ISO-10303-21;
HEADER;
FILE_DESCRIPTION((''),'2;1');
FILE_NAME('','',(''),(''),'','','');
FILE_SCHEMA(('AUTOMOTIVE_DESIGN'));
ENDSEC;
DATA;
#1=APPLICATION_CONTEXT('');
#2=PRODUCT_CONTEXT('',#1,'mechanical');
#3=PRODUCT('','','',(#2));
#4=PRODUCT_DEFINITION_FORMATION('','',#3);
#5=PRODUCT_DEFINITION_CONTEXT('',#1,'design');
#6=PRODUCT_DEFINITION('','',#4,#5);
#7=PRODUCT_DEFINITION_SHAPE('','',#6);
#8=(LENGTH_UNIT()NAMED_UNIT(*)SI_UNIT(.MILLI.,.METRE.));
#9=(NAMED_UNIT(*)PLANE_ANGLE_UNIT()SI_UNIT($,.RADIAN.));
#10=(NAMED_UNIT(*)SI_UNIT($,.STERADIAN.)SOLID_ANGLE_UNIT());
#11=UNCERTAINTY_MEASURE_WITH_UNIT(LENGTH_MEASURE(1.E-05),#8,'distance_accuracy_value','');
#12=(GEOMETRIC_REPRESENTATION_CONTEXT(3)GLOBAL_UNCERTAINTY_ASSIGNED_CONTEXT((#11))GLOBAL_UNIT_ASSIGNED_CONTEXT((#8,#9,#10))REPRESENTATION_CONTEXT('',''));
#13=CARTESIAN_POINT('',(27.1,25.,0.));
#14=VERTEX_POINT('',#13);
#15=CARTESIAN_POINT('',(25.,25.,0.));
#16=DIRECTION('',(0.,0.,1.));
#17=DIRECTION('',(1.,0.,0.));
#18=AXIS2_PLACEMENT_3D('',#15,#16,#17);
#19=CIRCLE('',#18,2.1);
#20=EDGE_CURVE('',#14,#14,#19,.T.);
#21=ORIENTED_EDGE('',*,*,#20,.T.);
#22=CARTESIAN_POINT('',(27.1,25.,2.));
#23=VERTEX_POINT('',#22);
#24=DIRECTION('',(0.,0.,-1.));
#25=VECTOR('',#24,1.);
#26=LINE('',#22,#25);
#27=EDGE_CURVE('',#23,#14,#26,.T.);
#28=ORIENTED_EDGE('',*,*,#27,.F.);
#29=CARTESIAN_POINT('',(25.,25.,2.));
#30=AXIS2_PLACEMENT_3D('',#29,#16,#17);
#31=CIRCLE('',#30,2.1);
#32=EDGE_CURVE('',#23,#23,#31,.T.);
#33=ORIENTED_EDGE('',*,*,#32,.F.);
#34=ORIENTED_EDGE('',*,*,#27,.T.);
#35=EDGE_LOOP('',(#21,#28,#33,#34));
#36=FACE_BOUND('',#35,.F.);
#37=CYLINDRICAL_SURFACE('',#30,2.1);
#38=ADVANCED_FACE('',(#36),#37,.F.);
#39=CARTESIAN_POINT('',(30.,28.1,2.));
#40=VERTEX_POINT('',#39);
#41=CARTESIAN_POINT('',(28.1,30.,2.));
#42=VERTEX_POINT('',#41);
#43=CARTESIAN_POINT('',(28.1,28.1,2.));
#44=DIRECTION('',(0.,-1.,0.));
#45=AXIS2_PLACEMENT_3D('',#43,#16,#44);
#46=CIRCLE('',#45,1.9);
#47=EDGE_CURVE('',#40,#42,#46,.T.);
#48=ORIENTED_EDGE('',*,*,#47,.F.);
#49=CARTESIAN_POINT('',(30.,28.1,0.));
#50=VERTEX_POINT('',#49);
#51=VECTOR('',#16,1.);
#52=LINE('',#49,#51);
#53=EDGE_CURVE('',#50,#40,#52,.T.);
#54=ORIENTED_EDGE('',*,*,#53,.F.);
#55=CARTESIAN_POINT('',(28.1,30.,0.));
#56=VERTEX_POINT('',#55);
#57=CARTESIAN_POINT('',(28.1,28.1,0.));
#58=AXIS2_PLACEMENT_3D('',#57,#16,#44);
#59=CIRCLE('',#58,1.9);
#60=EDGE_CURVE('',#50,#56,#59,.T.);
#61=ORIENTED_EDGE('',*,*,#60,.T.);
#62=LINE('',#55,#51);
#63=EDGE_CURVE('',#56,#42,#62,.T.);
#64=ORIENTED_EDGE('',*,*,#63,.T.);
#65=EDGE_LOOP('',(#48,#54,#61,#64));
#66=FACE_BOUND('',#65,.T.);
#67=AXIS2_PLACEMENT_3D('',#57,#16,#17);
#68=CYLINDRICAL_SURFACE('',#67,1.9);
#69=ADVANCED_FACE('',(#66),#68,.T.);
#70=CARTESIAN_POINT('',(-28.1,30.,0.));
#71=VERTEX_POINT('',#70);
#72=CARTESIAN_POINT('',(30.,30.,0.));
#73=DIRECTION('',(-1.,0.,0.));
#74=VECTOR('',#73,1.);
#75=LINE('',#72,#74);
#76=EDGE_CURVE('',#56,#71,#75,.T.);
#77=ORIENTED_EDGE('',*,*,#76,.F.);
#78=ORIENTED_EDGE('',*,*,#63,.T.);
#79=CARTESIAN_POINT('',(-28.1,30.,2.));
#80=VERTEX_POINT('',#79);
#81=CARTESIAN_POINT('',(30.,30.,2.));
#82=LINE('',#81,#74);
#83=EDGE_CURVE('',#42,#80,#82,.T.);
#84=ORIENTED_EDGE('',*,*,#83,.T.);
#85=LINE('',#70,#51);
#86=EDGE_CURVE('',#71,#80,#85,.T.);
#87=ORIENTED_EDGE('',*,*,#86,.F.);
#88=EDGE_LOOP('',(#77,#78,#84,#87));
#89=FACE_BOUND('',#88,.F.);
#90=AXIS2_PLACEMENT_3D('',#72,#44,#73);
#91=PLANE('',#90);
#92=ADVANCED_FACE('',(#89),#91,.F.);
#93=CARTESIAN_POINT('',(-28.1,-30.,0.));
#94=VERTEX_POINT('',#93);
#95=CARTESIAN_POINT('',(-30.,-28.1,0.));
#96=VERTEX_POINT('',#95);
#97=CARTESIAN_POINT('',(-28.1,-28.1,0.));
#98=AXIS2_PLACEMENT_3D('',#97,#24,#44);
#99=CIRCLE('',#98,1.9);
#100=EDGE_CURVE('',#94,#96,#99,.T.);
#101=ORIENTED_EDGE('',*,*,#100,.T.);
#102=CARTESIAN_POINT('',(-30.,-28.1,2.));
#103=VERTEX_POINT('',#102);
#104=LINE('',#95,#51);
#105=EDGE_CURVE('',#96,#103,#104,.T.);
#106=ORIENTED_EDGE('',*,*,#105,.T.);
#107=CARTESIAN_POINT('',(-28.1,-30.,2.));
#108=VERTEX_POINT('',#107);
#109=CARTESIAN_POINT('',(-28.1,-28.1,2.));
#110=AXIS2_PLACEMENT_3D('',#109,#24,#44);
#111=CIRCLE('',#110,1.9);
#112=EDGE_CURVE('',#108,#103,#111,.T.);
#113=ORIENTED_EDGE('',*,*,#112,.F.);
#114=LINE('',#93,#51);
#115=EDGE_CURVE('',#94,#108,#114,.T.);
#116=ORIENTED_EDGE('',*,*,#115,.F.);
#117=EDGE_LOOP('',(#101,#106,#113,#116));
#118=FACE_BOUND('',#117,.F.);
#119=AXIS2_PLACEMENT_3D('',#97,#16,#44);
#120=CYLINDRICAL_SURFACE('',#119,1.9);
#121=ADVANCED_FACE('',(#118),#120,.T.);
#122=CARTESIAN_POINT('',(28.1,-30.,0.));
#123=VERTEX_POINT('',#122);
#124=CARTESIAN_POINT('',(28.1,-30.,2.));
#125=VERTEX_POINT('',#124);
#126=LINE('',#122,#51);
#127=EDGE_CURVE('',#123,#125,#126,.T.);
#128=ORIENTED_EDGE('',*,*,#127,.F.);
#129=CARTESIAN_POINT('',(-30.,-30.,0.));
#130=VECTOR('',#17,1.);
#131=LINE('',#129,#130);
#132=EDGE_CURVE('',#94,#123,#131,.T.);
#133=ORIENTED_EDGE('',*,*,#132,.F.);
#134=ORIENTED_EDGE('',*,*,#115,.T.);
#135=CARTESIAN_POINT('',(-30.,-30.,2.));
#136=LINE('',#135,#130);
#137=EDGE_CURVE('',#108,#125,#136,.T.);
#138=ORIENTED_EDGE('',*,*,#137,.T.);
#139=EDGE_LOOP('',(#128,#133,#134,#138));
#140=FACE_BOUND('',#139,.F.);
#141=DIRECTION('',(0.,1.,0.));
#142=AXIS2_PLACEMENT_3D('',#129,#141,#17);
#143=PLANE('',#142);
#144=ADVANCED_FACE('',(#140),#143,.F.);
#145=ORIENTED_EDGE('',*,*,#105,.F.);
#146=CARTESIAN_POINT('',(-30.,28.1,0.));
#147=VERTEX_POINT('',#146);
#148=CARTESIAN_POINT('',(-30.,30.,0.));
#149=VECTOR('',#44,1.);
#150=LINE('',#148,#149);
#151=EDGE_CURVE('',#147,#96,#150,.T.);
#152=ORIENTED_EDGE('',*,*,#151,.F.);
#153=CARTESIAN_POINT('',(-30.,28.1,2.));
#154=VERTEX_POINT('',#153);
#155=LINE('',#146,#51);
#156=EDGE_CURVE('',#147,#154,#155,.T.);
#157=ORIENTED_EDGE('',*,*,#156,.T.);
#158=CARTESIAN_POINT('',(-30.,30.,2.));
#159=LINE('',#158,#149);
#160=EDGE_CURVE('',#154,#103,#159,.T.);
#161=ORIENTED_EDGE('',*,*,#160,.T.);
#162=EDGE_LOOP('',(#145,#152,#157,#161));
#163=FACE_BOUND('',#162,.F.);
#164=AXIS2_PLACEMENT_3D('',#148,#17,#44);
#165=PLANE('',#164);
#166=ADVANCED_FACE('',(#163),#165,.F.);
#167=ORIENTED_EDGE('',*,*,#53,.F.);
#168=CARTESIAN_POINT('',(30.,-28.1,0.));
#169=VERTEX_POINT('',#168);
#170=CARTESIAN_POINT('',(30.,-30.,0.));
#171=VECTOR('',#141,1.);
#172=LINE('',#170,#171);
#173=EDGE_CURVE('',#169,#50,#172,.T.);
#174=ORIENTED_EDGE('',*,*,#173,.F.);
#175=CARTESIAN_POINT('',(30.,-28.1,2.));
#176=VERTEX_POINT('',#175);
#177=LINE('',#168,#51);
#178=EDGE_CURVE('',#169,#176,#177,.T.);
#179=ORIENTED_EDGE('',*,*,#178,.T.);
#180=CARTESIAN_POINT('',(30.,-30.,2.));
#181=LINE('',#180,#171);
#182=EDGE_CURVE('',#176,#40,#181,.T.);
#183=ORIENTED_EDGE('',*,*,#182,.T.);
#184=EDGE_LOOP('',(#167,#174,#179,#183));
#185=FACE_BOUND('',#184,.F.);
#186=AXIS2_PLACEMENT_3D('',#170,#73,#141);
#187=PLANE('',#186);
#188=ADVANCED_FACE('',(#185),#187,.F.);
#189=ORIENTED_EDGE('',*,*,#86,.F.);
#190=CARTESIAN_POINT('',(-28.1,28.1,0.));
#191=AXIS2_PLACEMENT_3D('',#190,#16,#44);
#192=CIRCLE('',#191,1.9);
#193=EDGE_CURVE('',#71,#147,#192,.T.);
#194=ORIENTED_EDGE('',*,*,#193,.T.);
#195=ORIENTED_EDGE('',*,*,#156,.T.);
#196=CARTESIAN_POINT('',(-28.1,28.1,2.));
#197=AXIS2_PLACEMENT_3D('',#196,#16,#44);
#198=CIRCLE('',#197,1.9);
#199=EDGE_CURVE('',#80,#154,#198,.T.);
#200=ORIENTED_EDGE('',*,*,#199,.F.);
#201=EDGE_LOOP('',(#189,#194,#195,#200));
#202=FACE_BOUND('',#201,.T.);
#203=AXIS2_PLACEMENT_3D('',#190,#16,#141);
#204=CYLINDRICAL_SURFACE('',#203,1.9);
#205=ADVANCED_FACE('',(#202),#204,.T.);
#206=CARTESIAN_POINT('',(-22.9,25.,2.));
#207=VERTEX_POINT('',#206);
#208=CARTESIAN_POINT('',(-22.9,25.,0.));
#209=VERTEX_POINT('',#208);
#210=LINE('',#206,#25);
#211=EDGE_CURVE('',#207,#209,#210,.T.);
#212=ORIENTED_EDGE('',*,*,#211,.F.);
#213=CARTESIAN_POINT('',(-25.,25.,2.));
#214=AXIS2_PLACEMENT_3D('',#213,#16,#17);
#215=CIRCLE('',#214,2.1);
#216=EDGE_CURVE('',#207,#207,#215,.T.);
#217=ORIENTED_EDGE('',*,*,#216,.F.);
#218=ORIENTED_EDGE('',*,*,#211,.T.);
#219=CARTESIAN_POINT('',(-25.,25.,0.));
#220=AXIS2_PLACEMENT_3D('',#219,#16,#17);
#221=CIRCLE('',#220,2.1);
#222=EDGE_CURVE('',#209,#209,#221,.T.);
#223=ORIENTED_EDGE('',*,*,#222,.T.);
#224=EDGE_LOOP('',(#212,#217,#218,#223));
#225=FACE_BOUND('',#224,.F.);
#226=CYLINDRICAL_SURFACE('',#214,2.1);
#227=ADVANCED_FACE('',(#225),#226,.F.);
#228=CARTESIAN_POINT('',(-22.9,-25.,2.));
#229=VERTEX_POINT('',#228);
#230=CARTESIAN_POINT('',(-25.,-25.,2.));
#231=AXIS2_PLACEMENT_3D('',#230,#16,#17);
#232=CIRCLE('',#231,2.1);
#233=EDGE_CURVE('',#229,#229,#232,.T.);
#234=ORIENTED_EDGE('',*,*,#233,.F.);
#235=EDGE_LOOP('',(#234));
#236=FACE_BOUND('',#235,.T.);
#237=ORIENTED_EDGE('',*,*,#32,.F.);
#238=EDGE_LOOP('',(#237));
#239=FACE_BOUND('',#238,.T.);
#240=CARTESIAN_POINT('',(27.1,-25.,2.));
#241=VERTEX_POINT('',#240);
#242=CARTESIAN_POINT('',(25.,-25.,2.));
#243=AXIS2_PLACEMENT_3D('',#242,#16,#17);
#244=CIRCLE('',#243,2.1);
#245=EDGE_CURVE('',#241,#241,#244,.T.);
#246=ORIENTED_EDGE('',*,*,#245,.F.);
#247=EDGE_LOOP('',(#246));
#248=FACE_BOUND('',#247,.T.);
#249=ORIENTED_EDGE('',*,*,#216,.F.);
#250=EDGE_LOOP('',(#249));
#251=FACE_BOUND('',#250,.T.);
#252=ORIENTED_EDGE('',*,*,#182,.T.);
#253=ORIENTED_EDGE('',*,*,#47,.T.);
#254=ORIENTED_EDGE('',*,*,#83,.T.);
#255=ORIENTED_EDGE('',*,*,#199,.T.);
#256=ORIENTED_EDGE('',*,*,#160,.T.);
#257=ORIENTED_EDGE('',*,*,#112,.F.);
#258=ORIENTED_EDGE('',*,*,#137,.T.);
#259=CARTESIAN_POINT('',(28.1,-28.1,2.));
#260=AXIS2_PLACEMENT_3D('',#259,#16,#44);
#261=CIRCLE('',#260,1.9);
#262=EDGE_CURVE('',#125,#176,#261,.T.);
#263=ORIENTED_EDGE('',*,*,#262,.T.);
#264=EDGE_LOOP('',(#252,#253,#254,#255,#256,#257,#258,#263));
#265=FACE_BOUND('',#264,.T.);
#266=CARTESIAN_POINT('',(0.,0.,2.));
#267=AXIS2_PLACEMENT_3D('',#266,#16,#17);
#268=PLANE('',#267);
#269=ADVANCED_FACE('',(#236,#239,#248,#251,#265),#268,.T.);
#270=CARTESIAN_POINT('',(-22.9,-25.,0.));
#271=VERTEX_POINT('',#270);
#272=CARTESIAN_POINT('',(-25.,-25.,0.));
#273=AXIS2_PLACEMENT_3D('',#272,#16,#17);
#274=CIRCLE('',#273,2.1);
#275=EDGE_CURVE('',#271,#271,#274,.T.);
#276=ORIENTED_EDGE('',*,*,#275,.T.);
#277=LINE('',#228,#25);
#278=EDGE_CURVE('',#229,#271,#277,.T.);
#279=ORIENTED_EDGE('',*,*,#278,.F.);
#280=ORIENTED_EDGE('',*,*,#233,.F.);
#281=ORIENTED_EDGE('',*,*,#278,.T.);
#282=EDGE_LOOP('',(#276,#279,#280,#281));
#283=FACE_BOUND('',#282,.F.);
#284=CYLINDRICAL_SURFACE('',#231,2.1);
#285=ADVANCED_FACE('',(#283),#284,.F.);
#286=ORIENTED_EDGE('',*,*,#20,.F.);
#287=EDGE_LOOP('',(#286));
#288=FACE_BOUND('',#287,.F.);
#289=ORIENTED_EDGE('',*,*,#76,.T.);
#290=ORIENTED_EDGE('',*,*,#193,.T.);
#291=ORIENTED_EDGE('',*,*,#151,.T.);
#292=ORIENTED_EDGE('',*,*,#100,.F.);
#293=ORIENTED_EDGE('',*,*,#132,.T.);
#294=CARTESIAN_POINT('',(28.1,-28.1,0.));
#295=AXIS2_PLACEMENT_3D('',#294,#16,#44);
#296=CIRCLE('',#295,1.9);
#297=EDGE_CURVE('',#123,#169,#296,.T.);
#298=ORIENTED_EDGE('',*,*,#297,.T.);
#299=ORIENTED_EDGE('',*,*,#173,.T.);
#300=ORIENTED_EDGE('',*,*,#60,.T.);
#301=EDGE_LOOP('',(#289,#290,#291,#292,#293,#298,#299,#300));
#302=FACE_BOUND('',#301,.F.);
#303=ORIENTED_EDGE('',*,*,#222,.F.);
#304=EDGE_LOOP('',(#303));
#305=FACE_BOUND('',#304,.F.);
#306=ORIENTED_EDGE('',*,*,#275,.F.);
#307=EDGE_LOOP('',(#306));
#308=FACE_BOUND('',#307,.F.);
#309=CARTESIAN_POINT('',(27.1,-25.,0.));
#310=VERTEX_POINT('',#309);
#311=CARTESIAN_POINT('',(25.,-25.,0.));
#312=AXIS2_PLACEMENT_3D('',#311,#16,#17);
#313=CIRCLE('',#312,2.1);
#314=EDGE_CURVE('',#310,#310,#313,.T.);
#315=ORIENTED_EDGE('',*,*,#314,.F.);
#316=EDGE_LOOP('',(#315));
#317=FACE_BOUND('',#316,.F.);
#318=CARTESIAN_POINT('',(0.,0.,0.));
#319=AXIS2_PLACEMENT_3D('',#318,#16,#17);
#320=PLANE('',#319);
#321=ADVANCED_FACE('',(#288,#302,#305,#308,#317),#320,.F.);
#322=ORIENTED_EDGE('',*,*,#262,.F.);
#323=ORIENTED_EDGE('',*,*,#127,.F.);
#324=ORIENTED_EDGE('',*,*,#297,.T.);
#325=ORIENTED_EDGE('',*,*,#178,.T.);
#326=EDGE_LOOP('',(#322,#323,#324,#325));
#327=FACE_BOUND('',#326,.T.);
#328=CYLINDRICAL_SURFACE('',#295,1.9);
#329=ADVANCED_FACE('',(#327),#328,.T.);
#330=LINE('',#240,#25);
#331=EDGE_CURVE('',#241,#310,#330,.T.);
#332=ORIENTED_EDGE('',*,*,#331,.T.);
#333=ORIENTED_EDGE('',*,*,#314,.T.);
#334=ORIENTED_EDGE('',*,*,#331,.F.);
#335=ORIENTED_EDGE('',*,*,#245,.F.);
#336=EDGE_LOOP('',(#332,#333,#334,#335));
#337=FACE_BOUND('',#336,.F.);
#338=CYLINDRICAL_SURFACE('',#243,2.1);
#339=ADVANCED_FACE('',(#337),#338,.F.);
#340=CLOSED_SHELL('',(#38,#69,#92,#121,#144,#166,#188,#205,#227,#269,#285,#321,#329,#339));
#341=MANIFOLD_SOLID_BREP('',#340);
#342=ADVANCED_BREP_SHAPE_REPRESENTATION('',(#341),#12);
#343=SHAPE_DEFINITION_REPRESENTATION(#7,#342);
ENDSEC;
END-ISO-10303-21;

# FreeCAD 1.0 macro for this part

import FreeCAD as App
import Part
import Sketcher
Q = App.Units.Quantity


def edges_at(feature, points):
    """Names of the edges that pass closest to the given points."""
    edges = feature.Shape.Edges
    near = lambda p: min(range(len(edges)), key=lambda i: edges[i].distToShape(Part.Vertex(*p))[0])
    return sorted({f"Edge{near(p) + 1}" for p in points})


def add_polygon(sketch, points):
    """Adds a closed chain of lines whose ends are joined by coincident constraints."""
    first, n = sketch.GeometryCount, len(points)
    for a, b in zip(points, points[1:] + points[:1]):
        sketch.addGeometry(Part.LineSegment(App.Vector(*a, 0), App.Vector(*b, 0)), False)
    for i in range(n):
        sketch.addConstraint(Sketcher.Constraint("Coincident", first + i, 2, first + (i + 1) % n, 1))

doc = App.newDocument("Part")
params = doc.addObject("Spreadsheet::Sheet", "Params")
for row, (alias, value) in enumerate([
    ("pad1_length", "2 mm"),
    ("fillet_radius", "1.9 mm"),
    ("sketch2_diameter", "4.2 mm"),
], start=1):
    params.set(f"A{row}", alias)
    params.set(f"B{row}", "=" + value)
    params.setAlias(f"B{row}", alias)

body = doc.addObject("PartDesign::Body", "Body")

# Sketch on XY plane
sketch1 = body.newObject("Sketcher::SketchObject", "Sketch")
sketch1.AttachmentSupport = (doc.getObject("XY_Plane"), [""])
sketch1.MapMode = "FlatFace"
add_polygon(sketch1, [(-30, 30), (-30, -30), (30, -30), (30, 30)])  # lines 0-3
sketch1.addConstraint(Sketcher.Constraint("Vertical", 0))
sketch1.addConstraint(Sketcher.Constraint("Horizontal", 1))
sketch1.addConstraint(Sketcher.Constraint("Vertical", 2))
sketch1.addConstraint(Sketcher.Constraint("Horizontal", 3))
sketch1.addConstraint(Sketcher.Constraint("Symmetric", 0, 2, 2, 2, -1, 1))
sketch1.addConstraint(Sketcher.Constraint("Equal", 3, 0))
sketch1.addConstraint(Sketcher.Constraint("DistanceX", 0, 2, -1, 1, Q("30 mm")))
pad1 = body.newObject("PartDesign::Pad", "Pad")
pad1.Profile = sketch1
pad1.setExpression("Length", "Params.pad1_length")
doc.recompute()

fillet = body.newObject("PartDesign::Fillet", "Fillet")
fillet.Base = (pad1, edges_at(pad1, [
    (30, -30, 1),
    (-30, -30, 1),
    (30, 30, 1),
    (-30, 30, 1),
]))
fillet.setExpression("Radius", "Params.fillet_radius")

# Sketch on XY plane
sketch2 = body.newObject("Sketcher::SketchObject", "Sketch001")
sketch2.AttachmentSupport = (doc.getObject("XY_Plane"), [""])
sketch2.MapMode = "FlatFace"
sketch2.AttachmentOffset = App.Placement(App.Vector(0, 0, 2), App.Rotation())
sketch2.addGeometry(Part.Circle(App.Vector(-25, 25, 0), App.Vector(0, 0, 1), 2.1), False)
sketch2.addGeometry(Part.Circle(App.Vector(-25, -25, 0), App.Vector(0, 0, 1), 2.1), False)
sketch2.addGeometry(Part.Circle(App.Vector(25, -25, 0), App.Vector(0, 0, 1), 2.1), False)
sketch2.addGeometry(Part.Circle(App.Vector(25, 25, 0), App.Vector(0, 0, 1), 2.1), False)
sketch2.addConstraint(Sketcher.Constraint("Equal", 0, 1))
sketch2.addConstraint(Sketcher.Constraint("Equal", 1, 2))
sketch2.addConstraint(Sketcher.Constraint("Equal", 2, 3))
sketch2.addConstraint(Sketcher.Constraint("Symmetric", 0, 3, 2, 3, -1, 1))
sketch2.addConstraint(Sketcher.Constraint("Symmetric", 1, 3, 3, 3, -1, 1))
sketch2.addConstraint(Sketcher.Constraint("Symmetric", 1, 3, 2, 3, -2))
sketch2.addConstraint(Sketcher.Constraint("DistanceX", 0, 3, -1, 1, Q("25 mm")))
sketch2.addConstraint(Sketcher.Constraint("DistanceY", -1, 1, 0, 3, Q("25 mm")))
sketch2.addConstraint(Sketcher.Constraint("Diameter", 0, Q("4.2 mm")))
sketch2.setExpression("Constraints[8]", "Params.sketch2_diameter")
pocket1 = body.newObject("PartDesign::Pocket", "Pocket")
pocket1.Profile = sketch2
pocket1.Type = "UpToFirst"

doc.recompute()
